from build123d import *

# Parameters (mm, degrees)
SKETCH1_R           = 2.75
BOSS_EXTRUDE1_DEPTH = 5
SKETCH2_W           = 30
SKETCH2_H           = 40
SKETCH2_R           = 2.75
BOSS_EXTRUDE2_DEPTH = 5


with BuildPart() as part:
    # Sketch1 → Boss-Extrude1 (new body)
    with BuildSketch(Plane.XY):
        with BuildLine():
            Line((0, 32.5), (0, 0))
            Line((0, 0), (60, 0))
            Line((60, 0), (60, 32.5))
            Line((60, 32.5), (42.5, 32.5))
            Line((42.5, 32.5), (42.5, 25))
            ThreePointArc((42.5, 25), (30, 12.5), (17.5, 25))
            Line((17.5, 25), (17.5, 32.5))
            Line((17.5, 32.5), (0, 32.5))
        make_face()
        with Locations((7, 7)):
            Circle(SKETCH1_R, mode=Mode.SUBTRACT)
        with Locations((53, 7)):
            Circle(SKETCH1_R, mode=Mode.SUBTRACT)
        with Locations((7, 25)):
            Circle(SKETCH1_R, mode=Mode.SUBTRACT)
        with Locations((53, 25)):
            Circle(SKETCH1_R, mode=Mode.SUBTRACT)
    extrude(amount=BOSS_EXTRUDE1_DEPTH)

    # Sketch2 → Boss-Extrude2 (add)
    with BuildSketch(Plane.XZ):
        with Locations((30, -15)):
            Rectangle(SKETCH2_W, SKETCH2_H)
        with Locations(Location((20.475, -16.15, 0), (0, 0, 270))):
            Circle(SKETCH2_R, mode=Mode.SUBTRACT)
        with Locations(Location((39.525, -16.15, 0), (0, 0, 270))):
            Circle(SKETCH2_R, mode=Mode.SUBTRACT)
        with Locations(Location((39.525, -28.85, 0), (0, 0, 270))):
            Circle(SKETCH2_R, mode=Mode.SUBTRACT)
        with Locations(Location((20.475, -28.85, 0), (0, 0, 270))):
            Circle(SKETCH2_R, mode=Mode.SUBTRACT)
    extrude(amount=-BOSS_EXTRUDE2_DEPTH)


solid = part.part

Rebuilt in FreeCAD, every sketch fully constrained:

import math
import FreeCAD as App
import Part
import Sketcher

V = App.Vector


def add_polygon(sketch, points):
    """Adds a closed chain of lines whose ends are joined by coincident constraints."""
    first, n = sketch.GeometryCount, len(points)
    for a, b in zip(points, points[1:] + points[:1]):
        sketch.addGeometry(Part.LineSegment(App.Vector(*a, 0), App.Vector(*b, 0)), False)
    for i in range(n):
        sketch.addConstraint(Sketcher.Constraint("Coincident", first + i, 2, first + (i + 1) % n, 1))

doc = App.newDocument("Part")
body = doc.addObject("PartDesign::Body", "Body")

# Sketch on XY plane
sketch1 = body.newObject("Sketcher::SketchObject", "Sketch")
sketch1.AttachmentSupport = (doc.getObject("XY_Plane"), [""])
sketch1.MapMode = "FlatFace"
sketch1.addGeometry([
    Part.LineSegment(V(0, 32.5, 0), V(0, 0, 0)),  # 0
    Part.LineSegment(V(0, 0, 0), V(60, 0, 0)),  # 1
    Part.LineSegment(V(60, 0, 0), V(60, 32.5, 0)),  # 2
    Part.LineSegment(V(60, 32.5, 0), V(42.5, 32.5, 0)),  # 3
    Part.LineSegment(V(42.5, 32.5, 0), V(42.5, 25, 0)),  # 4
    Part.ArcOfCircle(Part.Circle(V(30, 25, 0), V(0, 0, 1), 12.5), math.radians(180), math.radians(360)),  # 5
    Part.LineSegment(V(17.5, 25, 0), V(17.5, 32.5, 0)),  # 6
    Part.LineSegment(V(17.5, 32.5, 0), V(0, 32.5, 0)),  # 7
    Part.Circle(V(7, 7, 0), V(0, 0, 1), 2.75),  # 8
    Part.Circle(V(53, 7, 0), V(0, 0, 1), 2.75),  # 9
    Part.Circle(V(7, 25, 0), V(0, 0, 1), 2.75),  # 10
    Part.Circle(V(53, 25, 0), V(0, 0, 1), 2.75),  # 11
], False)
sketch1.addConstraint([
    Sketcher.Constraint("Coincident", 0, 2, 1, 1),
    Sketcher.Constraint("Coincident", 1, 2, 2, 1),
    Sketcher.Constraint("Coincident", 2, 2, 3, 1),
    Sketcher.Constraint("Coincident", 3, 2, 4, 1),
    Sketcher.Constraint("Tangent", 4, 2, 5, 2),
    Sketcher.Constraint("Tangent", 5, 1, 6, 1),
    Sketcher.Constraint("Coincident", 6, 2, 7, 1),
    Sketcher.Constraint("Coincident", 7, 2, 0, 1),
    Sketcher.Constraint("Vertical", 0),
    Sketcher.Constraint("Horizontal", 1),
    Sketcher.Constraint("Vertical", 2),
    Sketcher.Constraint("Horizontal", 3),
    Sketcher.Constraint("Vertical", 4),
    Sketcher.Constraint("Vertical", 6),
    Sketcher.Constraint("Horizontal", 7),
    Sketcher.Constraint("Coincident", 0, 2, -1, 1),
    Sketcher.Constraint("Equal", 8, 9),
    Sketcher.Constraint("Equal", 9, 10),
    Sketcher.Constraint("Equal", 10, 11),
    Sketcher.Constraint("Horizontal", 8, 3, 9, 3),
    Sketcher.Constraint("Horizontal", 5, 3, 10, 3),
    Sketcher.Constraint("Horizontal", 10, 3, 11, 3),
    Sketcher.Constraint("Horizontal", 3, 2, 6, 2),
    Sketcher.Constraint("Vertical", 8, 3, 10, 3),
    Sketcher.Constraint("Vertical", 9, 3, 11, 3),
    Sketcher.Constraint("Equal", 3, 7),
    Sketcher.Constraint("Diameter", 8, 5.5),
    Sketcher.Constraint("Radius", 5, 12.5),
    Sketcher.Constraint("DistanceX", 1, 1, 1, 2, 60.0),
    Sketcher.Constraint("DistanceY", 0, 2, 0, 1, 32.5),
    Sketcher.Constraint("DistanceY", 4, 2, 4, 1, 7.5),
    Sketcher.Constraint("DistanceX", -1, 1, 8, 3, 7.0),
    Sketcher.Constraint("DistanceY", -1, 1, 8, 3, 7.0),
    Sketcher.Constraint("DistanceX", -1, 1, 9, 3, 53.0),
])
pad1 = body.newObject("PartDesign::Pad", "Pad")
pad1.Profile = sketch1
pad1.Length = 5

# Sketch on XZ plane
sketch2 = body.newObject("Sketcher::SketchObject", "Sketch001")
sketch2.AttachmentSupport = (doc.getObject("XZ_Plane"), [""])
sketch2.MapMode = "FlatFace"
add_polygon(sketch2, [(15, 5), (15, -35), (45, -35), (45, 5)])  # lines 0-3
sketch2.addGeometry(Part.Circle(V(20.475, -28.85, 0), V(0, 0, 1), 2.75), False)  # 4
sketch2.addGeometry(Part.Circle(V(39.525, -28.85, 0), V(0, 0, 1), 2.75), False)  # 5
sketch2.addGeometry(Part.Circle(V(20.475, -16.15, 0), V(0, 0, 1), 2.75), False)  # 6
sketch2.addGeometry(Part.Circle(V(39.525, -16.15, 0), V(0, 0, 1), 2.75), False)  # 7
sketch2.addConstraint([
    Sketcher.Constraint("Vertical", 0),
    Sketcher.Constraint("Horizontal", 1),
    Sketcher.Constraint("Vertical", 2),
    Sketcher.Constraint("Horizontal", 3),
    Sketcher.Constraint("Equal", 4, 5),
    Sketcher.Constraint("Equal", 5, 6),
    Sketcher.Constraint("Equal", 6, 7),
    Sketcher.Constraint("Horizontal", 4, 3, 5, 3),
    Sketcher.Constraint("Horizontal", 6, 3, 7, 3),
    Sketcher.Constraint("Vertical", 4, 3, 6, 3),
    Sketcher.Constraint("Vertical", 5, 3, 7, 3),
    Sketcher.Constraint("Diameter", 4, 5.5),
    Sketcher.Constraint("DistanceX", 1, 1, 1, 2, 30.0),
    Sketcher.Constraint("DistanceY", 0, 2, 0, 1, 40.0),
    Sketcher.Constraint("DistanceX", -1, 1, 0, 2, 15.0),
    Sketcher.Constraint("DistanceY", 0, 2, -1, 1, 35.0),
    Sketcher.Constraint("DistanceY", 4, 3, 6, 3, 12.7),
    Sketcher.Constraint("DistanceY", 4, 3, -1, 1, 28.85),
    Sketcher.Constraint("DistanceX", 4, 3, 5, 3, 19.05),
    Sketcher.Constraint("DistanceX", -1, 1, 4, 3, 20.475),
])
pad2 = body.newObject("PartDesign::Pad", "Pad001")
pad2.Profile = sketch2
pad2.Length = 5
pad2.Reversed = True

doc.recompute()
